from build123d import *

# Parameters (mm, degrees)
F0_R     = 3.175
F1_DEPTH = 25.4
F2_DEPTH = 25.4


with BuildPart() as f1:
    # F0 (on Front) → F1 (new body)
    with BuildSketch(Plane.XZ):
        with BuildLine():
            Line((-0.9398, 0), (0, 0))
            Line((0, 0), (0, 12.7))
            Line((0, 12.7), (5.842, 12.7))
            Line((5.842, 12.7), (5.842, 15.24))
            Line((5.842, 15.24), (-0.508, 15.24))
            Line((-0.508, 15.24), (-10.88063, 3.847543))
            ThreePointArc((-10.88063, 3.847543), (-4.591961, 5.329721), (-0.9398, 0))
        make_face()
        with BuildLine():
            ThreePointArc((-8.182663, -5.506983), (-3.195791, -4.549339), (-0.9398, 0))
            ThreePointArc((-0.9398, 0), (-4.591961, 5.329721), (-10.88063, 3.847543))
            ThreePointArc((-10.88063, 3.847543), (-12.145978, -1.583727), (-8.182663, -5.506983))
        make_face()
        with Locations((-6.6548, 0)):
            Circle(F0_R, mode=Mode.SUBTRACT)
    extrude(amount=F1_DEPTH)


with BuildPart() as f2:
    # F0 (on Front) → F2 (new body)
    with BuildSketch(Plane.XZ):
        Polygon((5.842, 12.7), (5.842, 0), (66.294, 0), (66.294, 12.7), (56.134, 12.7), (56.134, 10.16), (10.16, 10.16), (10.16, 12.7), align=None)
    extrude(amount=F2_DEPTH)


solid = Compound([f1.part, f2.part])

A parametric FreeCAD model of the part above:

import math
import FreeCAD as App
import Part
import Sketcher

V = App.Vector
Q = App.Units.Quantity


def add_polygon(sketch, points):
    """Adds a closed chain of lines whose ends are joined by coincident constraints."""
    first, n = sketch.GeometryCount, len(points)
    for a, b in zip(points, points[1:] + points[:1]):
        sketch.addGeometry(Part.LineSegment(App.Vector(*a, 0), App.Vector(*b, 0)), False)
    for i in range(n):
        sketch.addConstraint(Sketcher.Constraint("Coincident", first + i, 2, first + (i + 1) % n, 1))

doc = App.newDocument("Part")
body = doc.addObject("PartDesign::Body", "Body")

sketch1 = body.newObject("Sketcher::SketchObject", "Sketch")
sketch1.AttachmentSupport = (doc.getObject("XZ_Plane"), [""])
sketch1.MapMode = "FlatFace"
sketch1.addGeometry(Part.LineSegment(V(-0.9, 0, 0), V(0, 0, 0)), False)
sketch1.addGeometry(Part.LineSegment(V(0, 0, 0), V(0, 12.7, 0)), False)
sketch1.addGeometry(Part.LineSegment(V(0, 12.7, 0), V(5.8, 12.7, 0)), False)
sketch1.addGeometry(Part.LineSegment(V(5.8, 12.7, 0), V(5.8, 15.2, 0)), False)
sketch1.addGeometry(Part.LineSegment(V(5.8, 15.2, 0), V(-0.5, 15.2, 0)), False)
sketch1.addGeometry(Part.LineSegment(V(-0.5, 15.2, 0), V(-10.9, 3.8, 0)), False)
sketch1.addGeometry(Part.ArcOfCircle(Part.Circle(V(-6.7, 0, 0), V(0, 0, 1), 5.7), math.radians(138), math.radians(254)), False)
sketch1.addGeometry(Part.ArcOfCircle(Part.Circle(V(-6.7, 0, 0), V(0, 0, 1), 5.7), math.radians(-106), math.radians(0)), False)
sketch1.addGeometry(Part.Circle(V(-6.7, 0, 0), V(0, 0, 1), 3.2), False)
sketch1.addConstraint(Sketcher.Constraint("Coincident", 0, 2, 1, 1))
sketch1.addConstraint(Sketcher.Constraint("Coincident", 1, 2, 2, 1))
sketch1.addConstraint(Sketcher.Constraint("Coincident", 2, 2, 3, 1))
sketch1.addConstraint(Sketcher.Constraint("Coincident", 3, 2, 4, 1))
sketch1.addConstraint(Sketcher.Constraint("Coincident", 4, 2, 5, 1))
sketch1.addConstraint(Sketcher.Constraint("Tangent", 5, 2, 6, 1))
sketch1.addConstraint(Sketcher.Constraint("Tangent", 6, 2, 7, 1))
sketch1.addConstraint(Sketcher.Constraint("Coincident", 7, 2, 0, 1))
sketch1.addConstraint(Sketcher.Constraint("Horizontal", 0))
sketch1.addConstraint(Sketcher.Constraint("Vertical", 1))
sketch1.addConstraint(Sketcher.Constraint("Horizontal", 2))
sketch1.addConstraint(Sketcher.Constraint("Vertical", 3))
sketch1.addConstraint(Sketcher.Constraint("Horizontal", 4))
sketch1.addConstraint(Sketcher.Constraint("Coincident", 0, 2, -1, 1))
sketch1.addConstraint(Sketcher.Constraint("Coincident", 8, 3, 6, 3))
sketch1.addConstraint(Sketcher.Constraint("Equal", 6, 7))
sketch1.addConstraint(Sketcher.Constraint("PointOnObject", 6, 3, -1))
sketch1.addConstraint(Sketcher.Constraint("Diameter", 8, Q("0.25 in")))
sketch1.addConstraint(Sketcher.Constraint("DistanceY", 1, 1, 1, 2, Q("0.5 in")))
sketch1.addConstraint(Sketcher.Constraint("DistanceY", 3, 1, 3, 2, Q("0.1 in")))
sketch1.addConstraint(Sketcher.Constraint("Radius", 6, Q("0.225 in")))
sketch1.addConstraint(Sketcher.Constraint("DistanceX", 2, 1, 2, 2, Q("0.23 in")))
sketch1.addConstraint(Sketcher.Constraint("DistanceX", 4, 2, 4, 1, Q("0.25 in")))
sketch1.addConstraint(Sketcher.Constraint("DistanceX", 0, 1, 0, 2, Q("0.037 in")))
sketch1.addConstraint(Sketcher.Constraint("DistanceX", 6, 2, -1, 1, Q("8.182663 mm")))
pad1 = body.newObject("PartDesign::Pad", "Pad")
pad1.Profile = sketch1
pad1.Length = Q("1 in")
body2 = doc.addObject("PartDesign::Body", "Body001")

sketch2 = body2.newObject("Sketcher::SketchObject", "Sketch001")
sketch2.AttachmentSupport = (doc.getObject("XZ_Plane001"), [""])
sketch2.MapMode = "FlatFace"
add_polygon(sketch2, [(5.8, 12.7), (5.8, 0), (66.3, 0), (66.3, 12.7), (56.1, 12.7), (56.1, 10.2), (10.2, 10.2), (10.2, 12.7)])
sketch2.addConstraint(Sketcher.Constraint("Vertical", 0))
sketch2.addConstraint(Sketcher.Constraint("Horizontal", 1))
sketch2.addConstraint(Sketcher.Constraint("Vertical", 2))
sketch2.addConstraint(Sketcher.Constraint("Horizontal", 3))
sketch2.addConstraint(Sketcher.Constraint("Vertical", 4))
sketch2.addConstraint(Sketcher.Constraint("Horizontal", 5))
sketch2.addConstraint(Sketcher.Constraint("Vertical", 6))
sketch2.addConstraint(Sketcher.Constraint("Horizontal", 7))
sketch2.addConstraint(Sketcher.Constraint("PointOnObject", 0, 2, -1))
sketch2.addConstraint(Sketcher.Constraint("Horizontal", 3, 2, 6, 2))
sketch2.addConstraint(Sketcher.Constraint("DistanceX", 3, 2, 3, 1, Q("0.4 in")))
sketch2.addConstraint(Sketcher.Constraint("DistanceY", 0, 2, 0, 1, Q("0.5 in")))
sketch2.addConstraint(Sketcher.Constraint("DistanceY", 4, 2, 4, 1, Q("0.1 in")))
sketch2.addConstraint(Sketcher.Constraint("DistanceX", 1, 1, 1, 2, Q("2.38 in")))
sketch2.addConstraint(Sketcher.Constraint("DistanceX", 5, 2, 5, 1, Q("1.81 in")))
sketch2.addConstraint(Sketcher.Constraint("DistanceX", -1, 1, 5, 2, Q("0.4 in")))
pad2 = body2.newObject("PartDesign::Pad", "Pad001")
pad2.Profile = sketch2
pad2.Length = Q("1 in")

doc.recompute()
